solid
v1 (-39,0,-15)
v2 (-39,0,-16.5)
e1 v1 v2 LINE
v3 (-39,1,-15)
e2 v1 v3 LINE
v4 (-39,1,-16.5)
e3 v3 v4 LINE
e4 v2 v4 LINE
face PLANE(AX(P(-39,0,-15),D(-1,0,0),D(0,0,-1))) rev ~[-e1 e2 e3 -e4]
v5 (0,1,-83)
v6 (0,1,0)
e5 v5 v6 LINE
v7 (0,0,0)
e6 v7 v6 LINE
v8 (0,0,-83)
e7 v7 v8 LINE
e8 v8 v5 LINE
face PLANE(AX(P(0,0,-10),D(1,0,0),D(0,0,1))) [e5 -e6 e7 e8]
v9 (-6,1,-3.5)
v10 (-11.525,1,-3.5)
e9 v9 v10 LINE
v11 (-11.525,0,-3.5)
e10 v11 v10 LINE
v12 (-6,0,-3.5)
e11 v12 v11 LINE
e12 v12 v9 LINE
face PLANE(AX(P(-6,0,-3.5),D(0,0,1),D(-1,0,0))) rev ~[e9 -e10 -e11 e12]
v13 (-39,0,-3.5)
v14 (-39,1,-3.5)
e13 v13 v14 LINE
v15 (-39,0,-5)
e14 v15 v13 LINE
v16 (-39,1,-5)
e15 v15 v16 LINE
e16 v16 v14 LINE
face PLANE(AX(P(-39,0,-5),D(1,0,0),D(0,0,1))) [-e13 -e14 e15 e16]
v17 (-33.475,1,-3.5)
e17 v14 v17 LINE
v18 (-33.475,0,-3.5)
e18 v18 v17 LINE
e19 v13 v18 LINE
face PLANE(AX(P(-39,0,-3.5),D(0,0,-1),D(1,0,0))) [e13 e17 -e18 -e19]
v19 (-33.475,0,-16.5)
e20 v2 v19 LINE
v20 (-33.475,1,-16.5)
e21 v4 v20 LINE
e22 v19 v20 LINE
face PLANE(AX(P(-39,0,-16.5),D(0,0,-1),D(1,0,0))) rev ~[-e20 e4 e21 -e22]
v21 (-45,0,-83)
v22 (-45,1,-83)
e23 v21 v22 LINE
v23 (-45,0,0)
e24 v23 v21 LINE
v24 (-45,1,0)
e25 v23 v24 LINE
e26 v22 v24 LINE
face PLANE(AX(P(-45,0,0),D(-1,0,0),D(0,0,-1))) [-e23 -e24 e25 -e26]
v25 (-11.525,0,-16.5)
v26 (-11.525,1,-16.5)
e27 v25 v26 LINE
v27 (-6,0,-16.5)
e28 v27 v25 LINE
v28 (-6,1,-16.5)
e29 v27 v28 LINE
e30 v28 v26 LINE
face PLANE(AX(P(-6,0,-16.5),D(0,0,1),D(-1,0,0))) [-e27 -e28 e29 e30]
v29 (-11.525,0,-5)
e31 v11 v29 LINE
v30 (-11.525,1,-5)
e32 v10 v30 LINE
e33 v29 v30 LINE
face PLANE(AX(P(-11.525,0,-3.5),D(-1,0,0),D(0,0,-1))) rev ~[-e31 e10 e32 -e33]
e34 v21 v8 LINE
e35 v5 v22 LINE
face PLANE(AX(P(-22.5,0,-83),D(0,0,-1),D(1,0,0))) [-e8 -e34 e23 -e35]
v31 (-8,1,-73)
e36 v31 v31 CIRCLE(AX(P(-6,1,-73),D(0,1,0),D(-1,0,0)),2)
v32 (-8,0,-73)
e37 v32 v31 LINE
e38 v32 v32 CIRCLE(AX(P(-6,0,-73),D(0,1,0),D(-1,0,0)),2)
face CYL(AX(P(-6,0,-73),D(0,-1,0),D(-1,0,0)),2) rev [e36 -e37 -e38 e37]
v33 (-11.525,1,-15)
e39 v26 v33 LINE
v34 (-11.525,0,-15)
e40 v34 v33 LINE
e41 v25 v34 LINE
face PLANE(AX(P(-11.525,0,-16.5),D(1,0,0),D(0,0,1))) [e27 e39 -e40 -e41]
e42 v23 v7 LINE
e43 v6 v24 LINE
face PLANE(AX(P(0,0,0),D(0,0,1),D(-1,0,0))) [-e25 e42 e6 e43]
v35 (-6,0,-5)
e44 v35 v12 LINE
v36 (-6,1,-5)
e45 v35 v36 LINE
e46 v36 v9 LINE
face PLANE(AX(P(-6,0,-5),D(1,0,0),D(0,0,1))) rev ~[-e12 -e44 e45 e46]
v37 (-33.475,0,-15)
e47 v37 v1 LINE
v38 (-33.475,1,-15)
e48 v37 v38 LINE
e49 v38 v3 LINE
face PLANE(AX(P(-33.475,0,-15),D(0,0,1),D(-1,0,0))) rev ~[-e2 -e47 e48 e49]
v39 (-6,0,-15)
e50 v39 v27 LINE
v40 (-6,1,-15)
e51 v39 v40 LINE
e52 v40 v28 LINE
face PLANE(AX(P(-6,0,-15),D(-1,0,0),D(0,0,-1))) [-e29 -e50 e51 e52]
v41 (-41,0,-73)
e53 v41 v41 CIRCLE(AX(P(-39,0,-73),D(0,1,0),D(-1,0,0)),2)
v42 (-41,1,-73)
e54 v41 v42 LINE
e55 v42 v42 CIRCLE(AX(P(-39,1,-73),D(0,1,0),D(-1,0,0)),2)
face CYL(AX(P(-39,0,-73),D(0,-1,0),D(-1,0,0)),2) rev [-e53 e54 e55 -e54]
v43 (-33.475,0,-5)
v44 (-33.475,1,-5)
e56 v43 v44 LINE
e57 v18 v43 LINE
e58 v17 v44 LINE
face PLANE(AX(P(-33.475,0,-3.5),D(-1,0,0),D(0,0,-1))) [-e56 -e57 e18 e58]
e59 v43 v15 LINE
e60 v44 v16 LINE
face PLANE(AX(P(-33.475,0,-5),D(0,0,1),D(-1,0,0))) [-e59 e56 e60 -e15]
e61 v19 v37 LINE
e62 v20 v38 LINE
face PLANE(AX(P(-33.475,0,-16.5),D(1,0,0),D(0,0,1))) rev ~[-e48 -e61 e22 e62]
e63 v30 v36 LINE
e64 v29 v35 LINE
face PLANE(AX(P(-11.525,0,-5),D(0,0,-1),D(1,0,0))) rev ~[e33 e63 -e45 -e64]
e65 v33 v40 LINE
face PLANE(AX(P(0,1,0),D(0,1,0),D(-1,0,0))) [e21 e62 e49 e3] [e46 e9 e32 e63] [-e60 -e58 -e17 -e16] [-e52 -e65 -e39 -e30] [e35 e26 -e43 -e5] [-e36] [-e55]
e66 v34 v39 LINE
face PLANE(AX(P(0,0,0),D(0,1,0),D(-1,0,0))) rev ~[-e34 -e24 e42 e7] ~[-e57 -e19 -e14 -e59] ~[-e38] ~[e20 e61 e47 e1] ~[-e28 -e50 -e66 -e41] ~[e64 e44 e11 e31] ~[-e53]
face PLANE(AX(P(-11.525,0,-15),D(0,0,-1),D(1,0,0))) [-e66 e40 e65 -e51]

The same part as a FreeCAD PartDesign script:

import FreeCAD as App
import Part
import Sketcher
from FreeCAD import Vector
Q = App.Units.Quantity

doc = App.newDocument("Part")
params = doc.addObject("Spreadsheet::Sheet", "Params")
for row, (alias, value) in enumerate([
    ("sketch1_diameter", "4 mm"),
    ("sketch1_width", "45 mm"),
    ("sketch1_height", "83 mm"),
    ("sketch1_height2", "1.5 mm"),
    ("pad1_length", "1 mm"),
], start=1):
    params.set(f"A{row}", alias)
    params.set(f"B{row}", "=" + value)
    params.setAlias(f"B{row}", alias)

body = doc.addObject("PartDesign::Body", "Body")

# Sketch on XZ plane
sketch1 = doc.addObject("Sketcher::SketchObject", "Sketch")
body.addObject(sketch1)
sketch1.AttachmentSupport = (doc.XZ_Plane, [""])
sketch1.MapMode = "FlatFace"
sketch1.addGeometry(Part.LineSegment(Vector(0, 0, 0), Vector(0, -83, 0)), False)
sketch1.addGeometry(Part.LineSegment(Vector(0, -83, 0), Vector(-45, -83, 0)), False)
sketch1.addGeometry(Part.LineSegment(Vector(-45, -83, 0), Vector(-45, 0, 0)), False)
sketch1.addGeometry(Part.LineSegment(Vector(-45, 0, 0), Vector(0, 0, 0)), False)
sketch1.addGeometry(Part.LineSegment(Vector(-6, -5, 0), Vector(-6, -3.5, 0)), False)
sketch1.addGeometry(Part.LineSegment(Vector(-6, -3.5, 0), Vector(-11.525, -3.5, 0)), False)
sketch1.addGeometry(Part.LineSegment(Vector(-11.525, -3.5, 0), Vector(-11.525, -5, 0)), False)
sketch1.addGeometry(Part.LineSegment(Vector(-11.525, -5, 0), Vector(-6, -5, 0)), False)
sketch1.addGeometry(Part.LineSegment(Vector(-39, -3.5, 0), Vector(-39, -5, 0)), False)
sketch1.addGeometry(Part.LineSegment(Vector(-39, -5, 0), Vector(-33.475, -5, 0)), False)
sketch1.addGeometry(Part.LineSegment(Vector(-33.475, -5, 0), Vector(-33.475, -3.5, 0)), False)
sketch1.addGeometry(Part.LineSegment(Vector(-33.475, -3.5, 0), Vector(-39, -3.5, 0)), False)
sketch1.addGeometry(Part.LineSegment(Vector(-6, -16.5, 0), Vector(-6, -15, 0)), False)
sketch1.addGeometry(Part.LineSegment(Vector(-6, -15, 0), Vector(-11.525, -15, 0)), False)
sketch1.addGeometry(Part.LineSegment(Vector(-11.525, -15, 0), Vector(-11.525, -16.5, 0)), False)
sketch1.addGeometry(Part.LineSegment(Vector(-11.525, -16.5, 0), Vector(-6, -16.5, 0)), False)
sketch1.addGeometry(Part.Circle(Vector(-6, -73, 0), Vector(0, 0, 1), 2), False)
sketch1.addGeometry(Part.LineSegment(Vector(-39, -16.5, 0), Vector(-33.475, -16.5, 0)), False)
sketch1.addGeometry(Part.LineSegment(Vector(-33.475, -16.5, 0), Vector(-33.475, -15, 0)), False)
sketch1.addGeometry(Part.LineSegment(Vector(-33.475, -15, 0), Vector(-39, -15, 0)), False)
sketch1.addGeometry(Part.LineSegment(Vector(-39, -15, 0), Vector(-39, -16.5, 0)), False)
sketch1.addGeometry(Part.Circle(Vector(-39, -73, 0), Vector(0, 0, 1), 2), False)
sketch1.addConstraint(Sketcher.Constraint("Coincident", 0, 2, 1, 1))
sketch1.addConstraint(Sketcher.Constraint("Coincident", 1, 2, 2, 1))
sketch1.addConstraint(Sketcher.Constraint("Coincident", 2, 2, 3, 1))
sketch1.addConstraint(Sketcher.Constraint("Coincident", 3, 2, 0, 1))
sketch1.addConstraint(Sketcher.Constraint("Coincident", 4, 2, 5, 1))
sketch1.addConstraint(Sketcher.Constraint("Coincident", 5, 2, 6, 1))
sketch1.addConstraint(Sketcher.Constraint("Coincident", 6, 2, 7, 1))
sketch1.addConstraint(Sketcher.Constraint("Coincident", 7, 2, 4, 1))
sketch1.addConstraint(Sketcher.Constraint("Coincident", 8, 2, 9, 1))
sketch1.addConstraint(Sketcher.Constraint("Coincident", 9, 2, 10, 1))
sketch1.addConstraint(Sketcher.Constraint("Coincident", 10, 2, 11, 1))
sketch1.addConstraint(Sketcher.Constraint("Coincident", 11, 2, 8, 1))
sketch1.addConstraint(Sketcher.Constraint("Coincident", 12, 2, 13, 1))
sketch1.addConstraint(Sketcher.Constraint("Coincident", 13, 2, 14, 1))
sketch1.addConstraint(Sketcher.Constraint("Coincident", 14, 2, 15, 1))
sketch1.addConstraint(Sketcher.Constraint("Coincident", 15, 2, 12, 1))
sketch1.addConstraint(Sketcher.Constraint("Coincident", 17, 2, 18, 1))
sketch1.addConstraint(Sketcher.Constraint("Coincident", 18, 2, 19, 1))
sketch1.addConstraint(Sketcher.Constraint("Coincident", 19, 2, 20, 1))
sketch1.addConstraint(Sketcher.Constraint("Coincident", 20, 2, 17, 1))
sketch1.addConstraint(Sketcher.Constraint("Vertical", 0))
sketch1.addConstraint(Sketcher.Constraint("Horizontal", 1))
sketch1.addConstraint(Sketcher.Constraint("Vertical", 2))
sketch1.addConstraint(Sketcher.Constraint("Horizontal", 3))
sketch1.addConstraint(Sketcher.Constraint("Vertical", 4))
sketch1.addConstraint(Sketcher.Constraint("Horizontal", 5))
sketch1.addConstraint(Sketcher.Constraint("Vertical", 6))
sketch1.addConstraint(Sketcher.Constraint("Horizontal", 7))
sketch1.addConstraint(Sketcher.Constraint("Vertical", 8))
sketch1.addConstraint(Sketcher.Constraint("Horizontal", 9))
sketch1.addConstraint(Sketcher.Constraint("Vertical", 10))
sketch1.addConstraint(Sketcher.Constraint("Horizontal", 11))
sketch1.addConstraint(Sketcher.Constraint("Vertical", 12))
sketch1.addConstraint(Sketcher.Constraint("Horizontal", 13))
sketch1.addConstraint(Sketcher.Constraint("Vertical", 14))
sketch1.addConstraint(Sketcher.Constraint("Horizontal", 15))
sketch1.addConstraint(Sketcher.Constraint("Horizontal", 17))
sketch1.addConstraint(Sketcher.Constraint("Vertical", 18))
sketch1.addConstraint(Sketcher.Constraint("Horizontal", 19))
sketch1.addConstraint(Sketcher.Constraint("Vertical", 20))
sketch1.addConstraint(Sketcher.Constraint("Coincident", 3, 2, -1, 1))
sketch1.addConstraint(Sketcher.Constraint("Equal", 16, 21))
sketch1.addConstraint(Sketcher.Constraint("Horizontal", 16, 3, 21, 3))
sketch1.addConstraint(Sketcher.Constraint("Horizontal", 7, 2, 8, 2))
sketch1.addConstraint(Sketcher.Constraint("Horizontal", 5, 2, 10, 2))
sketch1.addConstraint(Sketcher.Constraint("Horizontal", 15, 2, 17, 2))
sketch1.addConstraint(Sketcher.Constraint("Horizontal", 13, 2, 18, 2))
sketch1.addConstraint(Sketcher.Constraint("Vertical", 16, 3, 4, 2))
sketch1.addConstraint(Sketcher.Constraint("Vertical", 21, 3, 8, 2))
sketch1.addConstraint(Sketcher.Constraint("Vertical", 7, 2, 12, 2))
sketch1.addConstraint(Sketcher.Constraint("Vertical", 6, 2, 13, 2))
sketch1.addConstraint(Sketcher.Constraint("Vertical", 10, 2, 17, 2))
sketch1.addConstraint(Sketcher.Constraint("Vertical", 11, 2, 19, 2))
sketch1.addConstraint(Sketcher.Constraint("Equal", 7, 9))
sketch1.addConstraint(Sketcher.Constraint("Equal", 10, 12))
sketch1.addConstraint(Sketcher.Constraint("Diameter", 16, Q("4 mm")))
sketch1.addConstraint(Sketcher.Constraint("DistanceX", 1, 2, 1, 1, Q("45 mm")))
sketch1.addConstraint(Sketcher.Constraint("DistanceY", 0, 2, 0, 1, Q("83 mm")))
sketch1.addConstraint(Sketcher.Constraint("DistanceY", 4, 1, 4, 2, Q("1.5 mm")))
sketch1.addConstraint(Sketcher.Constraint("DistanceX", 16, 3, -1, 1, Q("6 mm")))
sketch1.addConstraint(Sketcher.Constraint("DistanceY", 0, 2, 16, 3, Q("10 mm")))
sketch1.addConstraint(Sketcher.Constraint("DistanceX", 1, 2, 21, 3, Q("6 mm")))
sketch1.addConstraint(Sketcher.Constraint("DistanceY", 12, 2, 7, 2, Q("10 mm")))
sketch1.addConstraint(Sketcher.Constraint("DistanceY", 6, 2, -1, 1, Q("5 mm")))
sketch1.addConstraint(Sketcher.Constraint("DistanceX", 5, 2, 5, 1, Q("5.525 mm")))
sketch1.setExpression("Constraints[55]", "Params.sketch1_diameter")
sketch1.setExpression("Constraints[56]", "Params.sketch1_width")
sketch1.setExpression("Constraints[57]", "Params.sketch1_height")
sketch1.setExpression("Constraints[58]", "Params.sketch1_height2")
pad1 = doc.addObject("PartDesign::Pad", "Pad")
body.addObject(pad1)
pad1.Profile = sketch1
pad1.setExpression("Length", "Params.pad1_length")
pad1.Reversed = True

doc.recompute()
